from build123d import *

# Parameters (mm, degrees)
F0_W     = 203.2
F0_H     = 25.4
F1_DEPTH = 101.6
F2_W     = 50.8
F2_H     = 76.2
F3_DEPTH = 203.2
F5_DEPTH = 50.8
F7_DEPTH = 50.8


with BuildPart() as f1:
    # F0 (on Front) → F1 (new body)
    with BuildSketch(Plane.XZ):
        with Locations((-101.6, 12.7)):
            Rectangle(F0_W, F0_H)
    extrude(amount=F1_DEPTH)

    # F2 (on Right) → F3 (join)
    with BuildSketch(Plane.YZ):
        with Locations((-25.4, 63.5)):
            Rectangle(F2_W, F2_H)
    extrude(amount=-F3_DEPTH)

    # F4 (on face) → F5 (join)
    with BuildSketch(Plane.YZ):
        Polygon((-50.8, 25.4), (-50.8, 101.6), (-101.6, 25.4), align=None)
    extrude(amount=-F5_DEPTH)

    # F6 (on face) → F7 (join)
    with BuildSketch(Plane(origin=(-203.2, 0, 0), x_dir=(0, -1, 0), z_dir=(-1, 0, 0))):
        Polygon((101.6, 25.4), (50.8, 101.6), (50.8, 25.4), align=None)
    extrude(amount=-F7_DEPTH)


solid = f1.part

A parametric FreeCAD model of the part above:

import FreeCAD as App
import Part
import Sketcher
from FreeCAD import Vector
Q = App.Units.Quantity


def add_polygon(sketch, points):
    """Adds a closed chain of lines whose ends are joined by coincident constraints."""
    first, n = sketch.GeometryCount, len(points)
    for a, b in zip(points, points[1:] + points[:1]):
        sketch.addGeometry(Part.LineSegment(App.Vector(*a, 0), App.Vector(*b, 0)), False)
    for i in range(n):
        sketch.addConstraint(Sketcher.Constraint("Coincident", first + i, 2, first + (i + 1) % n, 1))

doc = App.newDocument("Part")
body = doc.addObject("PartDesign::Body", "Body")

# Sketch on XZ plane
sketch1 = doc.addObject("Sketcher::SketchObject", "Sketch")
body.addObject(sketch1)
sketch1.AttachmentSupport = (doc.XZ_Plane, [""])
sketch1.MapMode = "FlatFace"
add_polygon(sketch1, [(-203, 25), (-203, 0), (0, 0), (0, 25)])  # lines 0-3
sketch1.addConstraint([
    Sketcher.Constraint("Vertical", 0),
    Sketcher.Constraint("Horizontal", 1),
    Sketcher.Constraint("Vertical", 2),
    Sketcher.Constraint("Horizontal", 3),
    Sketcher.Constraint("Coincident", 1, 2, -1, 1),
    Sketcher.Constraint("DistanceX", 1, 1, 1, 2, Q("8 in")),
    Sketcher.Constraint("DistanceY", 0, 2, 0, 1, Q("1 in")),
])
pad1 = doc.addObject("PartDesign::Pad", "Pad")
body.addObject(pad1)
pad1.Profile = sketch1
pad1.Length = Q("4 in")

# Sketch on YZ plane
sketch2 = doc.addObject("Sketcher::SketchObject", "Sketch001")
body.addObject(sketch2)
sketch2.AttachmentSupport = (doc.YZ_Plane, [""])
sketch2.MapMode = "FlatFace"
add_polygon(sketch2, [(-51, 102), (-51, 25), (0, 25), (0, 102)])  # lines 0-3
sketch2.addConstraint([
    Sketcher.Constraint("Vertical", 0),
    Sketcher.Constraint("Horizontal", 1),
    Sketcher.Constraint("Vertical", 2),
    Sketcher.Constraint("Horizontal", 3),
    Sketcher.Constraint("PointOnObject", 1, 2, -2),
    Sketcher.Constraint("DistanceX", 1, 1, 1, 2, Q("2 in")),
    Sketcher.Constraint("DistanceY", 0, 2, 0, 1, Q("3 in")),
    Sketcher.Constraint("DistanceY", -1, 1, 0, 2, Q("1 in")),
])
pad2 = doc.addObject("PartDesign::Pad", "Pad001")
body.addObject(pad2)
pad2.Profile = sketch2
pad2.Length = Q("8 in")
pad2.Reversed = True

# Sketch on YZ plane
sketch3 = doc.addObject("Sketcher::SketchObject", "Sketch002")
body.addObject(sketch3)
sketch3.AttachmentSupport = (doc.YZ_Plane, [""])
sketch3.MapMode = "FlatFace"
add_polygon(sketch3, [(-51, 25), (-51, 102), (-102, 25)])  # lines 0-2
sketch3.addConstraint([
    Sketcher.Constraint("Vertical", 0),
    Sketcher.Constraint("Horizontal", 2),
    Sketcher.Constraint("DistanceX", 2, 1, 2, 2, Q("2 in")),
    Sketcher.Constraint("DistanceY", 0, 1, 0, 2, Q("3 in")),
    Sketcher.Constraint("DistanceX", 0, 2, -1, 1, Q("2 in")),
    Sketcher.Constraint("DistanceY", -1, 1, 0, 2, Q("4 in")),
])
pad3 = doc.addObject("PartDesign::Pad", "Pad002")
body.addObject(pad3)
pad3.Profile = sketch3
pad3.Length = Q("2 in")
pad3.Reversed = True

# Sketch on YZ plane
sketch4 = doc.addObject("Sketcher::SketchObject", "Sketch003")
body.addObject(sketch4)
sketch4.AttachmentSupport = (doc.YZ_Plane, [""])
sketch4.MapMode = "FlatFace"
sketch4.AttachmentOffset = App.Placement(Vector(0, 0, -8 * 25.4), App.Rotation())
add_polygon(sketch4, [(-102, 25), (-51, 102), (-51, 25)])  # lines 0-2
sketch4.addConstraint([
    Sketcher.Constraint("Vertical", 1),
    Sketcher.Constraint("Horizontal", 2),
    Sketcher.Constraint("DistanceX", 2, 2, 2, 1, Q("2 in")),
    Sketcher.Constraint("DistanceY", 1, 2, 1, 1, Q("3 in")),
    Sketcher.Constraint("DistanceX", 0, 2, -1, 1, Q("2 in")),
    Sketcher.Constraint("DistanceY", -1, 1, 0, 2, Q("4 in")),
])
pad4 = doc.addObject("PartDesign::Pad", "Pad003")
body.addObject(pad4)
pad4.Profile = sketch4
pad4.Length = Q("2 in")

doc.recompute()
